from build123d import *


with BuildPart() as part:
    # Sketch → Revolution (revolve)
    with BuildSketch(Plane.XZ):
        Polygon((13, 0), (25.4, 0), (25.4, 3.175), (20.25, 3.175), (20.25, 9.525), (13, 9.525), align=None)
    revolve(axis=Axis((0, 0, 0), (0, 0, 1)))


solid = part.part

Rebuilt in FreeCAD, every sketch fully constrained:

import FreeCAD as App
import Part
import Sketcher
Q = App.Units.Quantity


def add_polygon(sketch, points):
    """Adds a closed chain of lines whose ends are joined by coincident constraints."""
    first, n = sketch.GeometryCount, len(points)
    for a, b in zip(points, points[1:] + points[:1]):
        sketch.addGeometry(Part.LineSegment(App.Vector(*a, 0), App.Vector(*b, 0)), False)
    for i in range(n):
        sketch.addConstraint(Sketcher.Constraint("Coincident", first + i, 2, first + (i + 1) % n, 1))

doc = App.newDocument("Part")
body = doc.addObject("PartDesign::Body", "Body")

sketch1 = body.newObject("Sketcher::SketchObject", "Sketch")
sketch1.AttachmentSupport = (doc.getObject("XZ_Plane"), [""])
sketch1.MapMode = "FlatFace"
add_polygon(sketch1, [(13, 0), (25.4, 0), (25.4, 3.2), (20.2, 3.2), (20.2, 9.5), (13, 9.5)])
sketch1.addConstraint([
    Sketcher.Constraint("Horizontal", 0),
    Sketcher.Constraint("Vertical", 1),
    Sketcher.Constraint("Horizontal", 2),
    Sketcher.Constraint("Vertical", 3),
    Sketcher.Constraint("Horizontal", 4),
    Sketcher.Constraint("Vertical", 5),
    Sketcher.Constraint("PointOnObject", 0, 2, -1),
    Sketcher.Constraint("DistanceX", -1, 1, 0, 2, Q("1 in")),
    Sketcher.Constraint("DistanceY", 3, 1, 3, 2, Q("0.25 in")),
    Sketcher.Constraint("DistanceY", 1, 1, 1, 2, Q("0.125 in")),
    Sketcher.Constraint("DistanceX", 0, 1, 0, 2, Q("12.4 mm")),
    Sketcher.Constraint("DistanceX", 2, 2, 2, 1, Q("5.15 mm")),
])
revolution = body.newObject("PartDesign::Revolution", "Revolution")
revolution.Profile = sketch1
revolution.ReferenceAxis = (sketch1, ["V_Axis"])
revolution.Angle = 360

doc.recompute()
